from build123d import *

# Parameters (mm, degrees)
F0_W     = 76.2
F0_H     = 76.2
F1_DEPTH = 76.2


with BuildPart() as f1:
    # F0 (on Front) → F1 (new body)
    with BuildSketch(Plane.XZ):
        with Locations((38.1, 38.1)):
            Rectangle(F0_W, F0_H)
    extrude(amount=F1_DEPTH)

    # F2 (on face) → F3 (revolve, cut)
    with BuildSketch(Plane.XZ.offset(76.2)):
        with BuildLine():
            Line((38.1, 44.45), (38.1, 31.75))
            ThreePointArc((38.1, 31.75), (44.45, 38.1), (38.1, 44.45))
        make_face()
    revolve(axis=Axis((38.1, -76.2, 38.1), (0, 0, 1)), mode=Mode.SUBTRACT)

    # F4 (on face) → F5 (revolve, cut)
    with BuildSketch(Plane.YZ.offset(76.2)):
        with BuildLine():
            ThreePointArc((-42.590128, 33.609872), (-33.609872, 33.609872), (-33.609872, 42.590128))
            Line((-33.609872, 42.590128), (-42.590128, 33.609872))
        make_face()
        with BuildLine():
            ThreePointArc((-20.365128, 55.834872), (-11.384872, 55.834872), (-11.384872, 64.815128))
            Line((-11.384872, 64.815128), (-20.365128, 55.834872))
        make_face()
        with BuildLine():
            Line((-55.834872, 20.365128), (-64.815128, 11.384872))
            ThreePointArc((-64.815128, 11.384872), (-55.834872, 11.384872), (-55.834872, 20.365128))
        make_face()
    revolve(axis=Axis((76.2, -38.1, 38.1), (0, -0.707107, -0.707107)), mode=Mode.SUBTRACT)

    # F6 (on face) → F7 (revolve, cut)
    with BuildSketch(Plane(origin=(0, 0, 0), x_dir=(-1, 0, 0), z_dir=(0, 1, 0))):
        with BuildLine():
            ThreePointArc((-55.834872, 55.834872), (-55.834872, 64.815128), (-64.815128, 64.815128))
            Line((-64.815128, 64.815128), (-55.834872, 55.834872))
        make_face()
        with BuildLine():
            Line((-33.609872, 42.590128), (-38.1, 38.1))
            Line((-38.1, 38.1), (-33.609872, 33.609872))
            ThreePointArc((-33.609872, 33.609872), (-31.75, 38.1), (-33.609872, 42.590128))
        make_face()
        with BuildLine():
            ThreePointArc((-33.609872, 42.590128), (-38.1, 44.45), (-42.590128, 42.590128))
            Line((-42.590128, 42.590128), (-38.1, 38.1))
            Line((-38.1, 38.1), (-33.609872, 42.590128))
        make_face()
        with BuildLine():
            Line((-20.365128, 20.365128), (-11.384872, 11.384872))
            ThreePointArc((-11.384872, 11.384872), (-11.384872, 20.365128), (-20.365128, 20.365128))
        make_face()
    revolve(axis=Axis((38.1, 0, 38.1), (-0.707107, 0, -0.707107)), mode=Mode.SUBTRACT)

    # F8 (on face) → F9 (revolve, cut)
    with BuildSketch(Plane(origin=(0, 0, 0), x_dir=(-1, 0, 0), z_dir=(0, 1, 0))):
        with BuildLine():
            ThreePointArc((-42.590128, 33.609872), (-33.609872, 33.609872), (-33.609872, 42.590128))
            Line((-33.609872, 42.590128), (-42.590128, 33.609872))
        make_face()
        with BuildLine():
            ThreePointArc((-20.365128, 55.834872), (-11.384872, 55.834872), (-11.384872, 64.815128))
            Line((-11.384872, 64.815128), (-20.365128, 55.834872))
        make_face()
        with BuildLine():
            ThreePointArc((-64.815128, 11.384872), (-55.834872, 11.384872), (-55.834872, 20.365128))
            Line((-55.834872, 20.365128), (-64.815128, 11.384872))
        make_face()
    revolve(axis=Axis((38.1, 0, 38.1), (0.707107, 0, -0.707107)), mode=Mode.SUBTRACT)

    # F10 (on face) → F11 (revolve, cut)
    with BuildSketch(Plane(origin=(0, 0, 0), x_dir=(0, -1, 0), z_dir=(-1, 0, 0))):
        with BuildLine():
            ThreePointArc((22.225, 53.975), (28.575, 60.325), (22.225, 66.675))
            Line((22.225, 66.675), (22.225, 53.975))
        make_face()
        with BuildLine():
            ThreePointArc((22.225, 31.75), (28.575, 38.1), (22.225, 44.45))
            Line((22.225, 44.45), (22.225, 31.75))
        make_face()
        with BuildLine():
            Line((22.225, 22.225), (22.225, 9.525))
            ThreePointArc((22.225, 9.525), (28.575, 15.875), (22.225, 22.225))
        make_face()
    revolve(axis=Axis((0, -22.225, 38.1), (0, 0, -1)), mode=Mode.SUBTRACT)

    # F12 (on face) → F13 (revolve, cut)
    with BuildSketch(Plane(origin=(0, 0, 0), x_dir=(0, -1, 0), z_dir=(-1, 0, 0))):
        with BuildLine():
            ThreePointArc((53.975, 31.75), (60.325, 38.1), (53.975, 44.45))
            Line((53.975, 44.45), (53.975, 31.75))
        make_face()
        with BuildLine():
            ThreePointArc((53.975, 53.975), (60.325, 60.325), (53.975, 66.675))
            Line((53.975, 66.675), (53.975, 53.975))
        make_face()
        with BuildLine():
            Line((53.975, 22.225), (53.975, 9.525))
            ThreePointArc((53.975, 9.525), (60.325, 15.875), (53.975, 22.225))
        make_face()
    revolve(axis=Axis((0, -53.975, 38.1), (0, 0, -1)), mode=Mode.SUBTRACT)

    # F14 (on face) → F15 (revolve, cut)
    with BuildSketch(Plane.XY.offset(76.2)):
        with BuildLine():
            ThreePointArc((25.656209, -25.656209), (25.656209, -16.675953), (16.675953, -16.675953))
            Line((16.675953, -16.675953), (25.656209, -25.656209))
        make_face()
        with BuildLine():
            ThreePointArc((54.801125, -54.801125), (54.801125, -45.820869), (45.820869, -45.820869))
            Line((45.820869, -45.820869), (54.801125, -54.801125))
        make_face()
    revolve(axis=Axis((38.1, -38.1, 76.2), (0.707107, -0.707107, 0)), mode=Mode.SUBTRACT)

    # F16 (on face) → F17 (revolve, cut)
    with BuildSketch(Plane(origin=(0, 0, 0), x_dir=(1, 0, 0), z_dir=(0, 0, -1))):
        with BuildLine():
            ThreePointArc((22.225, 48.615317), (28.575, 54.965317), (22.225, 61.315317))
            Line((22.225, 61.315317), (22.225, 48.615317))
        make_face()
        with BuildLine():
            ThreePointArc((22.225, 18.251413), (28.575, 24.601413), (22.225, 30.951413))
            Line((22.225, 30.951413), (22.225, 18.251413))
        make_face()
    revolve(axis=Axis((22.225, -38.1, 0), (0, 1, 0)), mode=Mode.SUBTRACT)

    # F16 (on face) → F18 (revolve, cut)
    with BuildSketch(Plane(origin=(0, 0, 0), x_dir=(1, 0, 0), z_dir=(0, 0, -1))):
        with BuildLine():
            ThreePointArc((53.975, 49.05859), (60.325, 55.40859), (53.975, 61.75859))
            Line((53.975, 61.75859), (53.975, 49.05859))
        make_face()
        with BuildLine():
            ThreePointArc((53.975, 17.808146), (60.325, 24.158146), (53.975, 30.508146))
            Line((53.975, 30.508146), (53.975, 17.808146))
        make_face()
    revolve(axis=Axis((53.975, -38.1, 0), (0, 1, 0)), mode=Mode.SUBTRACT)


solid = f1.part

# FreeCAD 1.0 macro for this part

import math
import FreeCAD as App
import Part
import Sketcher
Q = App.Units.Quantity


def add_polygon(sketch, points):
    """Adds a closed chain of lines whose ends are joined by coincident constraints."""
    first, n = sketch.GeometryCount, len(points)
    for a, b in zip(points, points[1:] + points[:1]):
        sketch.addGeometry(Part.LineSegment(App.Vector(*a, 0), App.Vector(*b, 0)), False)
    for i in range(n):
        sketch.addConstraint(Sketcher.Constraint("Coincident", first + i, 2, first + (i + 1) % n, 1))

doc = App.newDocument("Part")
body = doc.addObject("PartDesign::Body", "Body")

# Sketch on XZ plane
sketch1 = body.newObject("Sketcher::SketchObject", "Sketch")
sketch1.AttachmentSupport = (doc.getObject("XZ_Plane"), [""])
sketch1.MapMode = "FlatFace"
add_polygon(sketch1, [(0, 76), (0, 0), (76, 0), (76, 76)])  # lines 0-3
sketch1.addConstraint(Sketcher.Constraint("Vertical", 0))
sketch1.addConstraint(Sketcher.Constraint("Horizontal", 1))
sketch1.addConstraint(Sketcher.Constraint("Vertical", 2))
sketch1.addConstraint(Sketcher.Constraint("Horizontal", 3))
sketch1.addConstraint(Sketcher.Constraint("Coincident", 0, 2, -1, 1))
sketch1.addConstraint(Sketcher.Constraint("Equal", 3, 0))
sketch1.addConstraint(Sketcher.Constraint("DistanceX", 1, 1, 1, 2, Q("3 in")))
pad1 = body.newObject("PartDesign::Pad", "Pad")
pad1.Profile = sketch1
pad1.Length = Q("3 in")

# Sketch on XZ plane
sketch2 = body.newObject("Sketcher::SketchObject", "Sketch001")
sketch2.AttachmentSupport = (doc.getObject("XZ_Plane"), [""])
sketch2.MapMode = "FlatFace"
sketch2.AttachmentOffset = App.Placement(App.Vector(0, 0, 3 * 25.4), App.Rotation())
sketch2.addGeometry(Part.LineSegment(App.Vector(38, 44, 0), App.Vector(38, 32, 0)), False)
sketch2.addGeometry(Part.ArcOfCircle(Part.Circle(App.Vector(38, 38, 0), App.Vector(0, 0, 1), 6), math.radians(-90), math.radians(90)), False)
sketch2.addGeometry(Part.LineSegment(App.Vector(38, 32, 0), App.Vector(38, 44, 0)), True)  # axis
sketch2.addConstraint(Sketcher.Constraint("Coincident", 0, 1, 1, 2))
sketch2.addConstraint(Sketcher.Constraint("Coincident", 1, 1, 0, 2))
sketch2.addConstraint(Sketcher.Constraint("Vertical", 0))
sketch2.addConstraint(Sketcher.Constraint("Vertical", 2))
sketch2.addConstraint(Sketcher.Constraint("Coincident", 2, 1, 1, 1))
sketch2.addConstraint(Sketcher.Constraint("Vertical", 1, 3, 0, 1))
sketch2.addConstraint(Sketcher.Constraint("Equal", 0, 2))
sketch2.addConstraint(Sketcher.Constraint("Radius", 1, Q("0.25 in")))
sketch2.addConstraint(Sketcher.Constraint("DistanceX", -1, 1, 1, 3, Q("1.5 in")))
sketch2.addConstraint(Sketcher.Constraint("DistanceY", -1, 1, 1, 3, Q("1.5 in")))
groove = body.newObject("PartDesign::Groove", "Groove")
groove.Profile = sketch2
groove.ReferenceAxis = (sketch2, ["Axis0"])
groove.Angle = 360

# Sketch on YZ plane
sketch3 = body.newObject("Sketcher::SketchObject", "Sketch002")
sketch3.AttachmentSupport = (doc.getObject("YZ_Plane"), [""])
sketch3.MapMode = "FlatFace"
sketch3.AttachmentOffset = App.Placement(App.Vector(0, 0, 3 * 25.4), App.Rotation())
sketch3.addGeometry(Part.ArcOfCircle(Part.Circle(App.Vector(-38, 38, 0), App.Vector(0, 0, 1), 6), math.radians(-135), math.radians(45)), False)
sketch3.addGeometry(Part.LineSegment(App.Vector(-34, 43, 0), App.Vector(-43, 34, 0)), False)
sketch3.addGeometry(Part.ArcOfCircle(Part.Circle(App.Vector(-16, 60, 0), App.Vector(0, 0, 1), 6), math.radians(-135), math.radians(45)), False)
sketch3.addGeometry(Part.LineSegment(App.Vector(-11, 65, 0), App.Vector(-20, 56, 0)), False)
sketch3.addGeometry(Part.LineSegment(App.Vector(-56, 20, 0), App.Vector(-65, 11, 0)), False)
sketch3.addGeometry(Part.ArcOfCircle(Part.Circle(App.Vector(-60, 16, 0), App.Vector(0, 0, 1), 6), math.radians(-135), math.radians(45)), False)
sketch3.addGeometry(Part.LineSegment(App.Vector(-11, 65, 0), App.Vector(-65, 11, 0)), True)  # axis
sketch3.addConstraint(Sketcher.Constraint("Coincident", 0, 1, 1, 2))
sketch3.addConstraint(Sketcher.Constraint("Coincident", 1, 1, 0, 2))
sketch3.addConstraint(Sketcher.Constraint("Coincident", 2, 1, 3, 2))
sketch3.addConstraint(Sketcher.Constraint("Coincident", 3, 1, 2, 2))
sketch3.addConstraint(Sketcher.Constraint("Coincident", 4, 1, 5, 2))
sketch3.addConstraint(Sketcher.Constraint("Coincident", 5, 1, 4, 2))
sketch3.addConstraint(Sketcher.Constraint("Coincident", 6, 1, 3, 1))
sketch3.addConstraint(Sketcher.Constraint("Coincident", 6, 2, 5, 1))
sketch3.addConstraint(Sketcher.Constraint("Equal", 0, 2))
sketch3.addConstraint(Sketcher.Constraint("Equal", 2, 5))
sketch3.addConstraint(Sketcher.Constraint("Parallel", 1, 3))
sketch3.addConstraint(Sketcher.Constraint("Parallel", 3, 4))
sketch3.addConstraint(Sketcher.Constraint("Parallel", 4, 6))
sketch3.addConstraint(Sketcher.Constraint("Radius", 0, Q("0.25 in")))
sketch3.addConstraint(Sketcher.Constraint("Angle", 1, Q("-135 deg")))
sketch3.addConstraint(Sketcher.Constraint("DistanceX", 0, 3, -1, 1, Q("1.5 in")))
sketch3.addConstraint(Sketcher.Constraint("DistanceY", -1, 1, 0, 3, Q("1.5 in")))
sketch3.addConstraint(Sketcher.Constraint("DistanceX", 5, 3, 2, 3, Q("1.75 in")))
sketch3.addConstraint(Sketcher.Constraint("DistanceY", 5, 3, 2, 3, Q("1.75 in")))
sketch3.addConstraint(Sketcher.Constraint("DistanceX", 2, 3, -1, 1, Q("0.625 in")))
sketch3.addConstraint(Sketcher.Constraint("DistanceY", -1, 1, 2, 3, Q("2.375 in")))
sketch3.addConstraint(Sketcher.Constraint("DistanceX", 0, 1, 2, 1, Q("0.875 in")))
sketch3.addConstraint(Sketcher.Constraint("DistanceY", -1, 1, 3, 1, Q("64.815128 mm")))
groove2 = body.newObject("PartDesign::Groove", "Groove001")
groove2.Profile = sketch3
groove2.ReferenceAxis = (sketch3, ["Axis0"])
groove2.Angle = 360

# Sketch on XZ plane
sketch4 = body.newObject("Sketcher::SketchObject", "Sketch003")
sketch4.AttachmentSupport = (doc.getObject("XZ_Plane"), [""])
sketch4.MapMode = "FlatFace"
sketch4.addGeometry(Part.ArcOfCircle(Part.Circle(App.Vector(60, 60, 0), App.Vector(0, 0, 1), 6), math.radians(45), math.radians(225)), False)
sketch4.addGeometry(Part.LineSegment(App.Vector(65, 65, 0), App.Vector(56, 56, 0)), False)
sketch4.addGeometry(Part.ArcOfCircle(Part.Circle(App.Vector(38, 38, 0), App.Vector(0, 0, 1), 6), math.radians(135), math.radians(225)), False)
sketch4.addGeometry(Part.ArcOfCircle(Part.Circle(App.Vector(38, 38, 0), App.Vector(0, 0, 1), 6), math.radians(45), math.radians(135)), False)
sketch4.addGeometry(Part.LineSegment(App.Vector(43, 43, 0), App.Vector(34, 34, 0)), False)
sketch4.addGeometry(Part.LineSegment(App.Vector(20, 20, 0), App.Vector(11, 11, 0)), False)
sketch4.addGeometry(Part.ArcOfCircle(Part.Circle(App.Vector(16, 16, 0), App.Vector(0, 0, 1), 6), math.radians(45), math.radians(225)), False)
sketch4.addGeometry(Part.LineSegment(App.Vector(65, 65, 0), App.Vector(11, 11, 0)), True)  # axis
sketch4.addConstraint(Sketcher.Constraint("Coincident", 0, 1, 1, 1))
sketch4.addConstraint(Sketcher.Constraint("Coincident", 1, 2, 0, 2))
sketch4.addConstraint(Sketcher.Constraint("Tangent", 2, 1, 3, 2))
sketch4.addConstraint(Sketcher.Constraint("Coincident", 3, 1, 4, 1))
sketch4.addConstraint(Sketcher.Constraint("Coincident", 4, 2, 2, 2))
sketch4.addConstraint(Sketcher.Constraint("Coincident", 5, 1, 6, 1))
sketch4.addConstraint(Sketcher.Constraint("Coincident", 6, 2, 5, 2))
sketch4.addConstraint(Sketcher.Constraint("Coincident", 7, 1, 0, 1))
sketch4.addConstraint(Sketcher.Constraint("Coincident", 7, 2, 6, 2))
sketch4.addConstraint(Sketcher.Constraint("Equal", 0, 2))
sketch4.addConstraint(Sketcher.Constraint("Equal", 2, 3))
sketch4.addConstraint(Sketcher.Constraint("Equal", 3, 6))
sketch4.addConstraint(Sketcher.Constraint("Parallel", 1, 4))
sketch4.addConstraint(Sketcher.Constraint("Parallel", 4, 5))
sketch4.addConstraint(Sketcher.Constraint("Parallel", 5, 7))
sketch4.addConstraint(Sketcher.Constraint("Horizontal", 2, 1, 3, 1))
sketch4.addConstraint(Sketcher.Constraint("Vertical", 2, 1, 4, 2))
sketch4.addConstraint(Sketcher.Constraint("Radius", 0, Q("0.25 in")))
sketch4.addConstraint(Sketcher.Constraint("Angle", 1, Q("-135 deg")))
sketch4.addConstraint(Sketcher.Constraint("DistanceX", -1, 1, 2, 3, Q("1.5 in")))
sketch4.addConstraint(Sketcher.Constraint("DistanceY", -1, 1, 2, 3, Q("1.5 in")))
sketch4.addConstraint(Sketcher.Constraint("DistanceX", 6, 3, 0, 3, Q("1.75 in")))
sketch4.addConstraint(Sketcher.Constraint("DistanceY", 6, 3, 0, 3, Q("1.75 in")))
sketch4.addConstraint(Sketcher.Constraint("DistanceX", -1, 1, 0, 3, Q("2.375 in")))
sketch4.addConstraint(Sketcher.Constraint("DistanceY", -1, 1, 0, 3, Q("2.375 in")))
sketch4.addConstraint(Sketcher.Constraint("DistanceX", 2, 1, 1, 2, Q("0.875 in")))
groove3 = body.newObject("PartDesign::Groove", "Groove002")
groove3.Profile = sketch4
groove3.ReferenceAxis = (sketch4, ["Axis0"])
groove3.Angle = 360

# Sketch on XZ plane
sketch5 = body.newObject("Sketcher::SketchObject", "Sketch004")
sketch5.AttachmentSupport = (doc.getObject("XZ_Plane"), [""])
sketch5.MapMode = "FlatFace"
sketch5.addGeometry(Part.ArcOfCircle(Part.Circle(App.Vector(38, 38, 0), App.Vector(0, 0, 1), 6), math.radians(135), math.radians(315)), False)
sketch5.addGeometry(Part.LineSegment(App.Vector(34, 43, 0), App.Vector(43, 34, 0)), False)
sketch5.addGeometry(Part.ArcOfCircle(Part.Circle(App.Vector(16, 60, 0), App.Vector(0, 0, 1), 6), math.radians(135), math.radians(315)), False)
sketch5.addGeometry(Part.LineSegment(App.Vector(11, 65, 0), App.Vector(20, 56, 0)), False)
sketch5.addGeometry(Part.ArcOfCircle(Part.Circle(App.Vector(60, 16, 0), App.Vector(0, 0, 1), 6), math.radians(135), math.radians(315)), False)
sketch5.addGeometry(Part.LineSegment(App.Vector(56, 20, 0), App.Vector(65, 11, 0)), False)
sketch5.addGeometry(Part.LineSegment(App.Vector(11, 65, 0), App.Vector(65, 11, 0)), True)  # axis
sketch5.addConstraint(Sketcher.Constraint("Coincident", 0, 1, 1, 1))
sketch5.addConstraint(Sketcher.Constraint("Coincident", 1, 2, 0, 2))
sketch5.addConstraint(Sketcher.Constraint("Coincident", 2, 1, 3, 1))
sketch5.addConstraint(Sketcher.Constraint("Coincident", 3, 2, 2, 2))
sketch5.addConstraint(Sketcher.Constraint("Coincident", 4, 1, 5, 1))
sketch5.addConstraint(Sketcher.Constraint("Coincident", 5, 2, 4, 2))
sketch5.addConstraint(Sketcher.Constraint("Coincident", 6, 1, 2, 1))
sketch5.addConstraint(Sketcher.Constraint("Coincident", 6, 2, 5, 2))
sketch5.addConstraint(Sketcher.Constraint("Equal", 0, 2))
sketch5.addConstraint(Sketcher.Constraint("Equal", 2, 4))
sketch5.addConstraint(Sketcher.Constraint("Parallel", 1, 3))
sketch5.addConstraint(Sketcher.Constraint("Parallel", 3, 5))
sketch5.addConstraint(Sketcher.Constraint("Parallel", 5, 6))
sketch5.addConstraint(Sketcher.Constraint("Radius", 0, Q("0.25 in")))
sketch5.addConstraint(Sketcher.Constraint("Angle", 1, Q("-45 deg")))
sketch5.addConstraint(Sketcher.Constraint("DistanceX", -1, 1, 0, 3, Q("1.5 in")))
sketch5.addConstraint(Sketcher.Constraint("DistanceY", -1, 1, 0, 3, Q("1.5 in")))
sketch5.addConstraint(Sketcher.Constraint("DistanceX", 2, 3, 4, 3, Q("1.75 in")))
sketch5.addConstraint(Sketcher.Constraint("DistanceY", 4, 3, 2, 3, Q("1.75 in")))
sketch5.addConstraint(Sketcher.Constraint("DistanceX", -1, 1, 2, 3, Q("0.625 in")))
sketch5.addConstraint(Sketcher.Constraint("DistanceY", -1, 1, 2, 3, Q("2.375 in")))
sketch5.addConstraint(Sketcher.Constraint("DistanceX", 2, 1, 0, 1, Q("0.875 in")))
sketch5.addConstraint(Sketcher.Constraint("DistanceY", -1, 1, 3, 2, Q("55.834872 mm")))
groove4 = body.newObject("PartDesign::Groove", "Groove003")
groove4.Profile = sketch5
groove4.ReferenceAxis = (sketch5, ["Axis0"])
groove4.Angle = 360

# Sketch on YZ plane
sketch6 = body.newObject("Sketcher::SketchObject", "Sketch005")
sketch6.AttachmentSupport = (doc.getObject("YZ_Plane"), [""])
sketch6.MapMode = "FlatFace"
sketch6.addGeometry(Part.ArcOfCircle(Part.Circle(App.Vector(-22, 60, 0), App.Vector(0, 0, 1), 6), math.radians(90), math.radians(270)), False)
sketch6.addGeometry(Part.LineSegment(App.Vector(-22, 67, 0), App.Vector(-22, 54, 0)), False)
sketch6.addGeometry(Part.ArcOfCircle(Part.Circle(App.Vector(-22, 38, 0), App.Vector(0, 0, 1), 6), math.radians(90), math.radians(270)), False)
sketch6.addGeometry(Part.LineSegment(App.Vector(-22, 44, 0), App.Vector(-22, 32, 0)), False)
sketch6.addGeometry(Part.LineSegment(App.Vector(-22, 22, 0), App.Vector(-22, 10, 0)), False)
sketch6.addGeometry(Part.ArcOfCircle(Part.Circle(App.Vector(-22, 16, 0), App.Vector(0, 0, 1), 6), math.radians(90), math.radians(270)), False)
sketch6.addGeometry(Part.LineSegment(App.Vector(-22, 67, 0), App.Vector(-22, 10, 0)), True)  # axis
sketch6.addConstraint(Sketcher.Constraint("Coincident", 0, 1, 1, 1))
sketch6.addConstraint(Sketcher.Constraint("Coincident", 1, 2, 0, 2))
sketch6.addConstraint(Sketcher.Constraint("Coincident", 2, 1, 3, 1))
sketch6.addConstraint(Sketcher.Constraint("Coincident", 3, 2, 2, 2))
sketch6.addConstraint(Sketcher.Constraint("Coincident", 4, 1, 5, 1))
sketch6.addConstraint(Sketcher.Constraint("Coincident", 5, 2, 4, 2))
sketch6.addConstraint(Sketcher.Constraint("Vertical", 1))
sketch6.addConstraint(Sketcher.Constraint("Vertical", 3))
sketch6.addConstraint(Sketcher.Constraint("Vertical", 4))
sketch6.addConstraint(Sketcher.Constraint("Vertical", 6))
sketch6.addConstraint(Sketcher.Constraint("Coincident", 6, 1, 0, 1))
sketch6.addConstraint(Sketcher.Constraint("Coincident", 6, 2, 5, 2))
sketch6.addConstraint(Sketcher.Constraint("Equal", 0, 2))
sketch6.addConstraint(Sketcher.Constraint("Equal", 2, 5))
sketch6.addConstraint(Sketcher.Constraint("Vertical", 0, 3, 2, 3))
sketch6.addConstraint(Sketcher.Constraint("Vertical", 2, 3, 5, 3))
sketch6.addConstraint(Sketcher.Constraint("Vertical", 5, 3, 0, 1))
sketch6.addConstraint(Sketcher.Constraint("Vertical", 1, 2, 2, 1))
sketch6.addConstraint(Sketcher.Constraint("Radius", 0, Q("0.25 in")))
sketch6.addConstraint(Sketcher.Constraint("DistanceY", 5, 3, 0, 1, Q("2 in")))
sketch6.addConstraint(Sketcher.Constraint("DistanceY", -1, 1, 2, 3, Q("1.5 in")))
sketch6.addConstraint(Sketcher.Constraint("DistanceX", 0, 3, -1, 1, Q("0.875 in")))
sketch6.addConstraint(Sketcher.Constraint("DistanceY", -1, 1, 0, 3, Q("2.375 in")))
groove5 = body.newObject("PartDesign::Groove", "Groove004")
groove5.Profile = sketch6
groove5.ReferenceAxis = (sketch6, ["Axis0"])
groove5.Angle = 360

# Sketch on YZ plane
sketch7 = body.newObject("Sketcher::SketchObject", "Sketch006")
sketch7.AttachmentSupport = (doc.getObject("YZ_Plane"), [""])
sketch7.MapMode = "FlatFace"
sketch7.addGeometry(Part.ArcOfCircle(Part.Circle(App.Vector(-54, 38, 0), App.Vector(0, 0, 1), 6), math.radians(90), math.radians(270)), False)
sketch7.addGeometry(Part.LineSegment(App.Vector(-54, 44, 0), App.Vector(-54, 32, 0)), False)
sketch7.addGeometry(Part.ArcOfCircle(Part.Circle(App.Vector(-54, 60, 0), App.Vector(0, 0, 1), 6), math.radians(90), math.radians(270)), False)
sketch7.addGeometry(Part.LineSegment(App.Vector(-54, 67, 0), App.Vector(-54, 54, 0)), False)
sketch7.addGeometry(Part.LineSegment(App.Vector(-54, 22, 0), App.Vector(-54, 10, 0)), False)
sketch7.addGeometry(Part.ArcOfCircle(Part.Circle(App.Vector(-54, 16, 0), App.Vector(0, 0, 1), 6), math.radians(90), math.radians(270)), False)
sketch7.addGeometry(Part.LineSegment(App.Vector(-54, 67, 0), App.Vector(-54, 10, 0)), True)  # axis
sketch7.addConstraint(Sketcher.Constraint("Coincident", 0, 1, 1, 1))
sketch7.addConstraint(Sketcher.Constraint("Coincident", 1, 2, 0, 2))
sketch7.addConstraint(Sketcher.Constraint("Coincident", 2, 1, 3, 1))
sketch7.addConstraint(Sketcher.Constraint("Coincident", 3, 2, 2, 2))
sketch7.addConstraint(Sketcher.Constraint("Coincident", 4, 1, 5, 1))
sketch7.addConstraint(Sketcher.Constraint("Coincident", 5, 2, 4, 2))
sketch7.addConstraint(Sketcher.Constraint("Vertical", 1))
sketch7.addConstraint(Sketcher.Constraint("Vertical", 3))
sketch7.addConstraint(Sketcher.Constraint("Vertical", 4))
sketch7.addConstraint(Sketcher.Constraint("Vertical", 6))
sketch7.addConstraint(Sketcher.Constraint("Coincident", 6, 1, 2, 1))
sketch7.addConstraint(Sketcher.Constraint("Coincident", 6, 2, 5, 2))
sketch7.addConstraint(Sketcher.Constraint("Equal", 0, 2))
sketch7.addConstraint(Sketcher.Constraint("Equal", 2, 5))
sketch7.addConstraint(Sketcher.Constraint("Vertical", 0, 3, 2, 3))
sketch7.addConstraint(Sketcher.Constraint("Vertical", 2, 3, 5, 3))
sketch7.addConstraint(Sketcher.Constraint("Vertical", 5, 3, 0, 1))
sketch7.addConstraint(Sketcher.Constraint("Vertical", 1, 2, 2, 1))
sketch7.addConstraint(Sketcher.Constraint("Radius", 0, Q("0.25 in")))
sketch7.addConstraint(Sketcher.Constraint("DistanceY", 5, 3, 2, 1, Q("2 in")))
sketch7.addConstraint(Sketcher.Constraint("DistanceY", -1, 1, 0, 3, Q("1.5 in")))
sketch7.addConstraint(Sketcher.Constraint("DistanceX", 0, 3, -1, 1, Q("2.125 in")))
sketch7.addConstraint(Sketcher.Constraint("DistanceY", -1, 1, 2, 3, Q("2.375 in")))
groove6 = body.newObject("PartDesign::Groove", "Groove005")
groove6.Profile = sketch7
groove6.ReferenceAxis = (sketch7, ["Axis0"])
groove6.Angle = 360

# Sketch on XY plane
sketch8 = body.newObject("Sketcher::SketchObject", "Sketch007")
sketch8.AttachmentSupport = (doc.getObject("XY_Plane"), [""])
sketch8.MapMode = "FlatFace"
sketch8.AttachmentOffset = App.Placement(App.Vector(0, 0, 3 * 25.4), App.Rotation())
sketch8.addGeometry(Part.ArcOfCircle(Part.Circle(App.Vector(21, -21, 0), App.Vector(0, 0, 1), 6), math.radians(-45), math.radians(135)), False)
sketch8.addGeometry(Part.LineSegment(App.Vector(17, -17, 0), App.Vector(26, -26, 0)), False)
sketch8.addGeometry(Part.ArcOfCircle(Part.Circle(App.Vector(50, -50, 0), App.Vector(0, 0, 1), 6), math.radians(-45), math.radians(135)), False)
sketch8.addGeometry(Part.LineSegment(App.Vector(46, -46, 0), App.Vector(55, -55, 0)), False)
sketch8.addGeometry(Part.LineSegment(App.Vector(17, -17, 0), App.Vector(55, -55, 0)), True)  # axis
sketch8.addConstraint(Sketcher.Constraint("Coincident", 0, 1, 1, 2))
sketch8.addConstraint(Sketcher.Constraint("Coincident", 1, 1, 0, 2))
sketch8.addConstraint(Sketcher.Constraint("Coincident", 2, 1, 3, 2))
sketch8.addConstraint(Sketcher.Constraint("Coincident", 3, 1, 2, 2))
sketch8.addConstraint(Sketcher.Constraint("Coincident", 4, 1, 1, 1))
sketch8.addConstraint(Sketcher.Constraint("Coincident", 4, 2, 2, 1))
sketch8.addConstraint(Sketcher.Constraint("Equal", 0, 2))
sketch8.addConstraint(Sketcher.Constraint("Parallel", 1, 3))
sketch8.addConstraint(Sketcher.Constraint("Parallel", 3, 4))
sketch8.addConstraint(Sketcher.Constraint("Radius", 0, Q("0.25 in")))
sketch8.addConstraint(Sketcher.Constraint("Angle", 1, Q("-45 deg")))
sketch8.addConstraint(Sketcher.Constraint("DistanceX", -1, 1, 0, 3, Q("21.166081 mm")))
sketch8.addConstraint(Sketcher.Constraint("DistanceY", 0, 3, -1, 1, Q("21.166081 mm")))
sketch8.addConstraint(Sketcher.Constraint("DistanceX", -1, 1, 0, 1, Q("25.656209 mm")))
sketch8.addConstraint(Sketcher.Constraint("DistanceX", -1, 1, 3, 1, Q("45.820869 mm")))
sketch8.addConstraint(Sketcher.Constraint("DistanceX", 0, 1, 2, 3, Q("24.654788 mm")))
groove7 = body.newObject("PartDesign::Groove", "Groove006")
groove7.Profile = sketch8
groove7.ReferenceAxis = (sketch8, ["Axis0"])
groove7.Angle = 360

# Sketch on XY plane
sketch9 = body.newObject("Sketcher::SketchObject", "Sketch008")
sketch9.AttachmentSupport = (doc.getObject("XY_Plane"), [""])
sketch9.MapMode = "FlatFace"
sketch9.addGeometry(Part.ArcOfCircle(Part.Circle(App.Vector(22, -55, 0), App.Vector(0, 0, 1), 6), math.radians(-90), math.radians(90)), False)
sketch9.addGeometry(Part.LineSegment(App.Vector(22, -61, 0), App.Vector(22, -49, 0)), False)
sketch9.addGeometry(Part.ArcOfCircle(Part.Circle(App.Vector(22, -25, 0), App.Vector(0, 0, 1), 6), math.radians(-90), math.radians(90)), False)
sketch9.addGeometry(Part.LineSegment(App.Vector(22, -31, 0), App.Vector(22, -18, 0)), False)
sketch9.addGeometry(Part.LineSegment(App.Vector(22, -61, 0), App.Vector(22, -18, 0)), True)  # axis
sketch9.addConstraint(Sketcher.Constraint("Coincident", 0, 1, 1, 1))
sketch9.addConstraint(Sketcher.Constraint("Coincident", 1, 2, 0, 2))
sketch9.addConstraint(Sketcher.Constraint("Coincident", 2, 1, 3, 1))
sketch9.addConstraint(Sketcher.Constraint("Coincident", 3, 2, 2, 2))
sketch9.addConstraint(Sketcher.Constraint("Vertical", 1))
sketch9.addConstraint(Sketcher.Constraint("Vertical", 3))
sketch9.addConstraint(Sketcher.Constraint("Vertical", 4))
sketch9.addConstraint(Sketcher.Constraint("Coincident", 4, 1, 0, 1))
sketch9.addConstraint(Sketcher.Constraint("Coincident", 4, 2, 3, 2))
sketch9.addConstraint(Sketcher.Constraint("Equal", 0, 2))
sketch9.addConstraint(Sketcher.Constraint("Vertical", 0, 3, 2, 3))
sketch9.addConstraint(Sketcher.Constraint("Vertical", 2, 3, 0, 1))
sketch9.addConstraint(Sketcher.Constraint("Radius", 0, Q("0.25 in")))
sketch9.addConstraint(Sketcher.Constraint("DistanceX", -1, 1, 0, 3, Q("0.875 in")))
sketch9.addConstraint(Sketcher.Constraint("DistanceY", 4, 1, 4, 2, Q("43.063904 mm")))
sketch9.addConstraint(Sketcher.Constraint("DistanceY", 0, 3, -1, 1, Q("54.965317 mm")))
groove8 = body.newObject("PartDesign::Groove", "Groove007")
groove8.Profile = sketch9
groove8.ReferenceAxis = (sketch9, ["Axis0"])
groove8.Angle = 360

# Sketch on XY plane
sketch10 = body.newObject("Sketcher::SketchObject", "Sketch009")
sketch10.AttachmentSupport = (doc.getObject("XY_Plane"), [""])
sketch10.MapMode = "FlatFace"
sketch10.addGeometry(Part.ArcOfCircle(Part.Circle(App.Vector(54, -55, 0), App.Vector(0, 0, 1), 6), math.radians(-90), math.radians(90)), False)
sketch10.addGeometry(Part.LineSegment(App.Vector(54, -62, 0), App.Vector(54, -49, 0)), False)
sketch10.addGeometry(Part.ArcOfCircle(Part.Circle(App.Vector(54, -24, 0), App.Vector(0, 0, 1), 6), math.radians(-90), math.radians(90)), False)
sketch10.addGeometry(Part.LineSegment(App.Vector(54, -31, 0), App.Vector(54, -18, 0)), False)
sketch10.addGeometry(Part.LineSegment(App.Vector(54, -62, 0), App.Vector(54, -18, 0)), True)  # axis
sketch10.addConstraint(Sketcher.Constraint("Coincident", 0, 1, 1, 1))
sketch10.addConstraint(Sketcher.Constraint("Coincident", 1, 2, 0, 2))
sketch10.addConstraint(Sketcher.Constraint("Coincident", 2, 1, 3, 1))
sketch10.addConstraint(Sketcher.Constraint("Coincident", 3, 2, 2, 2))
sketch10.addConstraint(Sketcher.Constraint("Vertical", 1))
sketch10.addConstraint(Sketcher.Constraint("Vertical", 3))
sketch10.addConstraint(Sketcher.Constraint("Vertical", 4))
sketch10.addConstraint(Sketcher.Constraint("Coincident", 4, 1, 0, 1))
sketch10.addConstraint(Sketcher.Constraint("Coincident", 4, 2, 3, 2))
sketch10.addConstraint(Sketcher.Constraint("Equal", 0, 2))
sketch10.addConstraint(Sketcher.Constraint("Vertical", 0, 3, 2, 3))
sketch10.addConstraint(Sketcher.Constraint("Vertical", 2, 3, 0, 1))
sketch10.addConstraint(Sketcher.Constraint("Radius", 0, Q("0.25 in")))
sketch10.addConstraint(Sketcher.Constraint("DistanceX", -1, 1, 0, 3, Q("2.125 in")))
sketch10.addConstraint(Sketcher.Constraint("DistanceY", 4, 1, 4, 2, Q("43.950444 mm")))
sketch10.addConstraint(Sketcher.Constraint("DistanceY", 0, 3, -1, 1, Q("55.40859 mm")))
groove9 = body.newObject("PartDesign::Groove", "Groove008")
groove9.Profile = sketch10
groove9.ReferenceAxis = (sketch10, ["Axis0"])
groove9.Angle = 360

doc.recompute()
